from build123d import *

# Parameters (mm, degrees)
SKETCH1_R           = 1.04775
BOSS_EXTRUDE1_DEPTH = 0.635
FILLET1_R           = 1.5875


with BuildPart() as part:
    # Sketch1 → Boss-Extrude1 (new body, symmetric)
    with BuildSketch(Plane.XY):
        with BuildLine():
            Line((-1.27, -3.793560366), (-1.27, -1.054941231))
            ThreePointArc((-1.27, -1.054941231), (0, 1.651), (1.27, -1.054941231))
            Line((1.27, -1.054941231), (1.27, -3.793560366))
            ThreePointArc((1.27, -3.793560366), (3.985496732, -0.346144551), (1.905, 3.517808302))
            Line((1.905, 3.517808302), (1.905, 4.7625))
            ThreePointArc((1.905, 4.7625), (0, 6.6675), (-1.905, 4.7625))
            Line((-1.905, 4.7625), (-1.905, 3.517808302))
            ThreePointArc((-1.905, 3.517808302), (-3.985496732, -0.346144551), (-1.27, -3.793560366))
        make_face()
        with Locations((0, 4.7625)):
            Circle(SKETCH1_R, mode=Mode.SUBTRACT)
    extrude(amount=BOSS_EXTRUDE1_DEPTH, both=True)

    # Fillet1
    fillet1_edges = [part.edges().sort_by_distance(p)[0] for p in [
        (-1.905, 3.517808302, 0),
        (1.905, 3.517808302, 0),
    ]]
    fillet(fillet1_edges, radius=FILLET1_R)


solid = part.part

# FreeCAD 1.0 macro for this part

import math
import FreeCAD as App
import Part
import Sketcher

V = App.Vector
Q = App.Units.Quantity


def edges_at(feature, points):
    """Names of the edges that pass closest to the given points."""
    edges = feature.Shape.Edges
    near = lambda p: min(range(len(edges)), key=lambda i: edges[i].distToShape(Part.Vertex(*p))[0])
    return sorted({f"Edge{near(p) + 1}" for p in points})

doc = App.newDocument("Part")
body = doc.addObject("PartDesign::Body", "Body")

sketch1 = body.newObject("Sketcher::SketchObject", "Sketch")
sketch1.AttachmentSupport = (doc.getObject("XY_Plane"), [""])
sketch1.MapMode = "FlatFace"
sketch1.addGeometry(Part.LineSegment(V(-1.3, -3.8, 0), V(-1.3, -1.1, 0)), False)
sketch1.addGeometry(Part.ArcOfCircle(Part.Circle(V(0, 0, 0), V(0, 0, 1), 1.7), math.radians(-40), math.radians(220)), False)
sketch1.addGeometry(Part.LineSegment(V(1.3, -1.1, 0), V(1.3, -3.8, 0)), False)
sketch1.addGeometry(Part.ArcOfCircle(Part.Circle(V(0, 0, 0), V(0, 0, 1), 4), math.radians(-71), math.radians(62)), False)
sketch1.addGeometry(Part.LineSegment(V(1.9, 3.5, 0), V(1.9, 4.8, 0)), False)
sketch1.addGeometry(Part.ArcOfCircle(Part.Circle(V(0, 4.8, 0), V(0, 0, 1), 1.9), math.radians(0), math.radians(180)), False)
sketch1.addGeometry(Part.LineSegment(V(-1.9, 4.8, 0), V(-1.9, 3.5, 0)), False)
sketch1.addGeometry(Part.ArcOfCircle(Part.Circle(V(0, 0, 0), V(0, 0, 1), 4), math.radians(118), math.radians(251)), False)
sketch1.addGeometry(Part.Circle(V(0, 4.8, 0), V(0, 0, 1), 1), False)
sketch1.addConstraint(Sketcher.Constraint("Coincident", 0, 2, 1, 2))
sketch1.addConstraint(Sketcher.Constraint("Coincident", 1, 1, 2, 1))
sketch1.addConstraint(Sketcher.Constraint("Coincident", 2, 2, 3, 1))
sketch1.addConstraint(Sketcher.Constraint("Coincident", 3, 2, 4, 1))
sketch1.addConstraint(Sketcher.Constraint("Tangent", 4, 2, 5, 1))
sketch1.addConstraint(Sketcher.Constraint("Tangent", 5, 2, 6, 1))
sketch1.addConstraint(Sketcher.Constraint("Coincident", 6, 2, 7, 1))
sketch1.addConstraint(Sketcher.Constraint("Coincident", 7, 2, 0, 1))
sketch1.addConstraint(Sketcher.Constraint("Vertical", 0))
sketch1.addConstraint(Sketcher.Constraint("Vertical", 2))
sketch1.addConstraint(Sketcher.Constraint("Vertical", 4))
sketch1.addConstraint(Sketcher.Constraint("Vertical", 6))
sketch1.addConstraint(Sketcher.Constraint("Coincident", 1, 3, -1, 1))
sketch1.addConstraint(Sketcher.Constraint("Coincident", 3, 3, -1, 1))
sketch1.addConstraint(Sketcher.Constraint("Coincident", 7, 3, -1, 1))
sketch1.addConstraint(Sketcher.Constraint("Coincident", 8, 3, 5, 3))
sketch1.addConstraint(Sketcher.Constraint("Equal", 3, 7))
sketch1.addConstraint(Sketcher.Constraint("PointOnObject", 5, 3, -2))
sketch1.addConstraint(Sketcher.Constraint("Horizontal", 0, 2, 1, 1))
sketch1.addConstraint(Sketcher.Constraint("Radius", 1, Q("0.065 in")))
sketch1.addConstraint(Sketcher.Constraint("Radius", 5, Q("0.075 in")))
sketch1.addConstraint(Sketcher.Constraint("Diameter", 8, Q("0.0825 in")))
sketch1.addConstraint(Sketcher.Constraint("Radius", 3, Q("0.1575 in")))
sketch1.addConstraint(Sketcher.Constraint("DistanceX", 0, 2, 1, 1, Q("0.1 in")))
sketch1.addConstraint(Sketcher.Constraint("DistanceY", -1, 1, 5, 3, Q("0.1875 in")))
pad1 = body.newObject("PartDesign::Pad", "Pad")
pad1.Profile = sketch1
pad1.Length = Q("0.05 in")
pad1.Midplane = True
doc.recompute()

fillet = body.newObject("PartDesign::Fillet", "Fillet")
fillet.Base = (pad1, edges_at(pad1, [(-1.905, 3.518, 0), (1.905, 3.518, 0)]))
fillet.Radius = Q("0.0625 in")

doc.recompute()
